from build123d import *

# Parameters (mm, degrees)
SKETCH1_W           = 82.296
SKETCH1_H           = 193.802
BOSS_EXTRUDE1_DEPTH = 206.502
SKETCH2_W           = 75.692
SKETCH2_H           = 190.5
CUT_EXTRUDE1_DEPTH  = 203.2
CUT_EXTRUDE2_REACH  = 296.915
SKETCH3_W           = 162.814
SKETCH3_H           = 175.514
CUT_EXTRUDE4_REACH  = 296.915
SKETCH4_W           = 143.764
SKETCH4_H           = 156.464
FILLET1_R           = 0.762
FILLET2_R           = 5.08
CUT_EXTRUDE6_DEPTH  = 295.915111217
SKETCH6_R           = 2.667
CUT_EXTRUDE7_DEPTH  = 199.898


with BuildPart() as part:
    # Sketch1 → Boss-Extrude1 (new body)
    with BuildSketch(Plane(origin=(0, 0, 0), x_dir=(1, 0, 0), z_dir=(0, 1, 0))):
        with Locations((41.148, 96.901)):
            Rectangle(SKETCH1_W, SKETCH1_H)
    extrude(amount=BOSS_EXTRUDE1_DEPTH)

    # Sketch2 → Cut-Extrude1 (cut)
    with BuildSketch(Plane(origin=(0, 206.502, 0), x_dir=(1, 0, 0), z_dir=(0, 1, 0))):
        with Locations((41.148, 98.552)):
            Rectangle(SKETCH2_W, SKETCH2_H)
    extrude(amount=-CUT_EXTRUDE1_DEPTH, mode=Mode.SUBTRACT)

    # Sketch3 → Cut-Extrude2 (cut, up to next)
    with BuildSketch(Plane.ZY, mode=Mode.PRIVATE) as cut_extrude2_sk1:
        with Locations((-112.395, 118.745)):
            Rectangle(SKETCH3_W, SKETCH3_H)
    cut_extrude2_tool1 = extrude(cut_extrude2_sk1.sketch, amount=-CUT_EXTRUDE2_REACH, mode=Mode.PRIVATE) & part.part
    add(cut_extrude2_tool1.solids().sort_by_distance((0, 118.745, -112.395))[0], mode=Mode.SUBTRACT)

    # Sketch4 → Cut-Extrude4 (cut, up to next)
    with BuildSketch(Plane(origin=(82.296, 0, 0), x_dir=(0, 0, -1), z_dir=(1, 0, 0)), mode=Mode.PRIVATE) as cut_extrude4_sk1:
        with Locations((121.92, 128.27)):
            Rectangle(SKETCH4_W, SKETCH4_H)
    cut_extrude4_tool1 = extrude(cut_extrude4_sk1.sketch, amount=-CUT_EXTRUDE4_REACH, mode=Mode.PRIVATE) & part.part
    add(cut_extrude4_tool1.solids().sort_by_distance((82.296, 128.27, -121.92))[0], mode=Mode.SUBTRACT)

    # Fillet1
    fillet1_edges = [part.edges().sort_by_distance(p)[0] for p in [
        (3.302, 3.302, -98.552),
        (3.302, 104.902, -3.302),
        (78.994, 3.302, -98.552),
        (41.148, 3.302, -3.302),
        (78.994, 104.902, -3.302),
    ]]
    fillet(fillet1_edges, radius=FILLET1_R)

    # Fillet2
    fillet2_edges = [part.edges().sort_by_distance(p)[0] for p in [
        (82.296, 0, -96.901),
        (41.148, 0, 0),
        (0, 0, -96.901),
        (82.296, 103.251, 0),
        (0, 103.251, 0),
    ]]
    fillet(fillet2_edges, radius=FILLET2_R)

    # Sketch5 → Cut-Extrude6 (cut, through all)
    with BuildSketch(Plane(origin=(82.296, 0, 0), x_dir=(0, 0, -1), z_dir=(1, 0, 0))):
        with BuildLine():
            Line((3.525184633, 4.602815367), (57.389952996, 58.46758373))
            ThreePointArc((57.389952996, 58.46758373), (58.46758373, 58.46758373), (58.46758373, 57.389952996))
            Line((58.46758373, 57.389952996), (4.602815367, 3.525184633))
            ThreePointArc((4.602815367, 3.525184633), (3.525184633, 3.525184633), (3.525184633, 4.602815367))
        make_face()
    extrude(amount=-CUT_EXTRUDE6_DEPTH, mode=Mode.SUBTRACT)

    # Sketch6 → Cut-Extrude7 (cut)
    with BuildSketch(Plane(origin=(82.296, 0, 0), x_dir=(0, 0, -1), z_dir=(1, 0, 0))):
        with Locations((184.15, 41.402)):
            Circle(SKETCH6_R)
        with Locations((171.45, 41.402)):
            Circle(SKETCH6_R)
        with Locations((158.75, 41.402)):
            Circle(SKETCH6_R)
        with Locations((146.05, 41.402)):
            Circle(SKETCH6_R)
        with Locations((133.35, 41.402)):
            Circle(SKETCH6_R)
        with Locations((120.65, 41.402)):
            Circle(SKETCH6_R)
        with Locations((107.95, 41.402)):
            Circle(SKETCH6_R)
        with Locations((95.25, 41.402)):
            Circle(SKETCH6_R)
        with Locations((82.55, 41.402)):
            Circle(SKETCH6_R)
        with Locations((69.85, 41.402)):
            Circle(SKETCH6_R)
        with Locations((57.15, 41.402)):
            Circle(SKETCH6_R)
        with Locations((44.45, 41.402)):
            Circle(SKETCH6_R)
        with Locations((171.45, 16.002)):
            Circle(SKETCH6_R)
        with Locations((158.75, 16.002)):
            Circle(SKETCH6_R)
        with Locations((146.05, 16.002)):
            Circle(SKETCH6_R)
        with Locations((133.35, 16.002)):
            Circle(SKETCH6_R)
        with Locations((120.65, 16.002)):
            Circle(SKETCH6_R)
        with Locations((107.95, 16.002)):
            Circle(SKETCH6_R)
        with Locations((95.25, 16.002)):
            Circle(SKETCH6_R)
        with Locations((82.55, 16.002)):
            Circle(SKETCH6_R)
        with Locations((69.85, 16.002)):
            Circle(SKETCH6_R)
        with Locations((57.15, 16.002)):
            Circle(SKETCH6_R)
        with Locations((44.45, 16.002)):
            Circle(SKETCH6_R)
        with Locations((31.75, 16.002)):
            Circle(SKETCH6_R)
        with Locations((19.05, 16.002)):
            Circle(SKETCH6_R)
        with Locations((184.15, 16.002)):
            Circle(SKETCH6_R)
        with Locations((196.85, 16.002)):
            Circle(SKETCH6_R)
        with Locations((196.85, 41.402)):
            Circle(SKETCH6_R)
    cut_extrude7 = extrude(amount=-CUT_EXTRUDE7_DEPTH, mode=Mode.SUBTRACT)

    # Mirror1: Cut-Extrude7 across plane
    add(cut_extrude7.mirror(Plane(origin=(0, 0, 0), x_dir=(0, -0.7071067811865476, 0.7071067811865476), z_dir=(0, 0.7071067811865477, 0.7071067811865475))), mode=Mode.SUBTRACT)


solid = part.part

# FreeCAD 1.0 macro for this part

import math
import FreeCAD as App
import Part
import Sketcher

V = App.Vector
Q = App.Units.Quantity


def edges_at(feature, points):
    """Names of the edges that pass closest to the given points."""
    edges = feature.Shape.Edges
    near = lambda p: min(range(len(edges)), key=lambda i: edges[i].distToShape(Part.Vertex(*p))[0])
    return sorted({f"Edge{near(p) + 1}" for p in points})


def add_polygon(sketch, points):
    """Adds a closed chain of lines whose ends are joined by coincident constraints."""
    first, n = sketch.GeometryCount, len(points)
    for a, b in zip(points, points[1:] + points[:1]):
        sketch.addGeometry(Part.LineSegment(App.Vector(*a, 0), App.Vector(*b, 0)), False)
    for i in range(n):
        sketch.addConstraint(Sketcher.Constraint("Coincident", first + i, 2, first + (i + 1) % n, 1))

doc = App.newDocument("Part")
body = doc.addObject("PartDesign::Body", "Body")

sketch1 = body.newObject("Sketcher::SketchObject", "Sketch")
sketch1.AttachmentSupport = (doc.getObject("XZ_Plane"), [""])
sketch1.MapMode = "FlatFace"
add_polygon(sketch1, [(0, -193.802), (0, 0), (82.296, 0), (82.296, -193.802)])
sketch1.addConstraint([
    Sketcher.Constraint("Vertical", 0),
    Sketcher.Constraint("Horizontal", 1),
    Sketcher.Constraint("Vertical", 2),
    Sketcher.Constraint("Horizontal", 3),
    Sketcher.Constraint("Coincident", 0, 2, -1, 1),
    Sketcher.Constraint("DistanceX", 1, 1, 1, 2, Q("3.24 in")),
    Sketcher.Constraint("DistanceY", 0, 1, 0, 2, Q("7.63 in")),
])
pad1 = body.newObject("PartDesign::Pad", "Pad")
pad1.Profile = sketch1
pad1.Length = Q("8.13 in")
pad1.Reversed = True

sketch2 = body.newObject("Sketcher::SketchObject", "Sketch001")
sketch2.AttachmentSupport = (doc.getObject("XZ_Plane"), [""])
sketch2.MapMode = "FlatFace"
sketch2.AttachmentOffset = App.Placement(V(0, 0, -8.13 * 25.4), App.Rotation())
add_polygon(sketch2, [(3.302, -193.802), (3.302, -3.302), (78.994, -3.302), (78.994, -193.802)])
sketch2.addConstraint([
    Sketcher.Constraint("Vertical", 0),
    Sketcher.Constraint("Horizontal", 1),
    Sketcher.Constraint("Vertical", 2),
    Sketcher.Constraint("Horizontal", 3),
    Sketcher.Constraint("DistanceY", 0, 1, 0, 2, Q("7.5 in")),
    Sketcher.Constraint("DistanceX", 1, 1, 1, 2, Q("2.98 in")),
    Sketcher.Constraint("DistanceX", -1, 1, 0, 2, Q("0.13 in")),
    Sketcher.Constraint("DistanceY", 0, 2, -1, 1, Q("0.13 in")),
])
pocket1 = body.newObject("PartDesign::Pocket", "Pocket")
pocket1.Profile = sketch2
pocket1.Length = Q("8 in")
pocket1.Reversed = True

sketch3 = body.newObject("Sketcher::SketchObject", "Sketch002")
sketch3.AttachmentSupport = (doc.getObject("YZ_Plane"), [""])
sketch3.MapMode = "FlatFace"
add_polygon(sketch3, [(206.502, -193.802), (30.988, -193.802), (30.988, -30.988), (206.502, -30.988)])
sketch3.addConstraint([
    Sketcher.Constraint("Horizontal", 0),
    Sketcher.Constraint("Vertical", 1),
    Sketcher.Constraint("Horizontal", 2),
    Sketcher.Constraint("Vertical", 3),
    Sketcher.Constraint("DistanceX", 0, 2, 0, 1, Q("6.91 in")),
    Sketcher.Constraint("DistanceY", 1, 1, 1, 2, Q("6.41 in")),
    Sketcher.Constraint("DistanceX", -1, 1, 0, 2, Q("1.22 in")),
    Sketcher.Constraint("DistanceY", 0, 2, -1, 1, Q("7.63 in")),
])
pocket2 = body.newObject("PartDesign::Pocket", "Pocket001")
pocket2.Profile = sketch3
pocket2.Type = "UpToFirst"
pocket2.Reversed = True

sketch4 = body.newObject("Sketcher::SketchObject", "Sketch003")
sketch4.AttachmentSupport = (doc.getObject("YZ_Plane"), [""])
sketch4.MapMode = "FlatFace"
sketch4.AttachmentOffset = App.Placement(V(0, 0, 3.24 * 25.4), App.Rotation())
add_polygon(sketch4, [(206.502, -50.038), (50.038, -50.038), (50.038, -193.802), (206.502, -193.802)])
sketch4.addConstraint([
    Sketcher.Constraint("Horizontal", 0),
    Sketcher.Constraint("Vertical", 1),
    Sketcher.Constraint("Horizontal", 2),
    Sketcher.Constraint("Vertical", 3),
    Sketcher.Constraint("DistanceX", 0, 2, 0, 1, Q("6.16 in")),
    Sketcher.Constraint("DistanceY", 1, 2, 1, 1, Q("5.66 in")),
    Sketcher.Constraint("DistanceX", -1, 1, 0, 2, Q("1.97 in")),
    Sketcher.Constraint("DistanceY", 0, 2, -1, 1, Q("1.97 in")),
])
pocket3 = body.newObject("PartDesign::Pocket", "Pocket002")
pocket3.Profile = sketch4
pocket3.Type = "UpToFirst"
doc.recompute()

fillet = body.newObject("PartDesign::Fillet", "Fillet")
fillet.Base = (pocket3, edges_at(pocket3, [
    (3.302, 3.302, -98.552),
    (3.302, 104.902, -3.302),
    (78.994, 3.302, -98.552),
    (41.148, 3.302, -3.302),
    (78.994, 104.902, -3.302),
]))
fillet.Radius = Q("0.03 in")
doc.recompute()

fillet2 = body.newObject("PartDesign::Fillet", "Fillet001")
fillet2.Base = (fillet, edges_at(fillet, [
    (82.296, 0, -96.901),
    (41.148, 0, 0),
    (0, 0, -96.901),
    (82.296, 103.251, 0),
    (0, 103.251, 0),
]))
fillet2.Radius = Q("0.2 in")

sketch5 = body.newObject("Sketcher::SketchObject", "Sketch004")
sketch5.AttachmentSupport = (doc.getObject("YZ_Plane"), [""])
sketch5.MapMode = "FlatFace"
sketch5.AttachmentOffset = App.Placement(V(0, 0, 3.24 * 25.4), App.Rotation())
sketch5.addGeometry([
    Part.LineSegment(V(58.467584, -57.389953, 0), V(4.602815, -3.525185, 0)),
    Part.ArcOfCircle(Part.Circle(V(4.064, -4.064, 0), V(0, 0, 1), 0.762), math.radians(45), math.radians(225)),
    Part.LineSegment(V(3.525185, -4.602815, 0), V(57.389953, -58.467584, 0)),
    Part.ArcOfCircle(Part.Circle(V(57.928768, -57.928768, 0), V(0, 0, 1), 0.762), math.radians(-135), math.radians(45)),
], False)
sketch5.addConstraint([
    Sketcher.Constraint("Tangent", 0, 2, 1, 1),
    Sketcher.Constraint("Tangent", 1, 2, 2, 1),
    Sketcher.Constraint("Tangent", 2, 2, 3, 1),
    Sketcher.Constraint("Tangent", 3, 2, 0, 1),
    Sketcher.Constraint("Equal", 1, 3),
    Sketcher.Constraint("Radius", 1, Q("0.03 in")),
    Sketcher.Constraint("Angle", 0, Q("135 deg")),
    Sketcher.Constraint("DistanceX", -1, 1, 1, 3, Q("0.16 in")),
    Sketcher.Constraint("DistanceY", 1, 3, -1, 1, Q("0.16 in")),
    Sketcher.Constraint("DistanceY", 2, 2, 0, 2, Q("54.942399 mm")),
])
pocket4 = body.newObject("PartDesign::Pocket", "Pocket003")
pocket4.Profile = sketch5
pocket4.Type = "ThroughAll"

sketch6 = body.newObject("Sketcher::SketchObject", "Sketch005")
sketch6.AttachmentSupport = (doc.getObject("YZ_Plane"), [""])
sketch6.MapMode = "FlatFace"
sketch6.AttachmentOffset = App.Placement(V(0, 0, 3.24 * 25.4), App.Rotation())
sketch6.addGeometry([
    Part.Circle(V(41.402, -184.15, 0), V(0, 0, 1), 2.667),
    Part.Circle(V(41.402, -171.45, 0), V(0, 0, 1), 2.667),
    Part.Circle(V(41.402, -158.75, 0), V(0, 0, 1), 2.667),
    Part.Circle(V(41.402, -146.05, 0), V(0, 0, 1), 2.667),
    Part.Circle(V(41.402, -133.35, 0), V(0, 0, 1), 2.667),
    Part.Circle(V(41.402, -120.65, 0), V(0, 0, 1), 2.667),
    Part.Circle(V(41.402, -107.95, 0), V(0, 0, 1), 2.667),
    Part.Circle(V(41.402, -95.25, 0), V(0, 0, 1), 2.667),
    Part.Circle(V(41.402, -82.55, 0), V(0, 0, 1), 2.667),
    Part.Circle(V(41.402, -69.85, 0), V(0, 0, 1), 2.667),
    Part.Circle(V(41.402, -57.15, 0), V(0, 0, 1), 2.667),
    Part.Circle(V(41.402, -44.45, 0), V(0, 0, 1), 2.667),
    Part.Circle(V(16.002, -171.45, 0), V(0, 0, 1), 2.667),
    Part.Circle(V(16.002, -158.75, 0), V(0, 0, 1), 2.667),
    Part.Circle(V(16.002, -146.05, 0), V(0, 0, 1), 2.667),
    Part.Circle(V(16.002, -133.35, 0), V(0, 0, 1), 2.667),
    Part.Circle(V(16.002, -120.65, 0), V(0, 0, 1), 2.667),
    Part.Circle(V(16.002, -107.95, 0), V(0, 0, 1), 2.667),
    Part.Circle(V(16.002, -95.25, 0), V(0, 0, 1), 2.667),
    Part.Circle(V(16.002, -82.55, 0), V(0, 0, 1), 2.667),
    Part.Circle(V(16.002, -69.85, 0), V(0, 0, 1), 2.667),
    Part.Circle(V(16.002, -57.15, 0), V(0, 0, 1), 2.667),
    Part.Circle(V(16.002, -44.45, 0), V(0, 0, 1), 2.667),
    Part.Circle(V(16.002, -31.75, 0), V(0, 0, 1), 2.667),
    Part.Circle(V(16.002, -19.05, 0), V(0, 0, 1), 2.667),
    Part.Circle(V(16.002, -184.15, 0), V(0, 0, 1), 2.667),
    Part.Circle(V(16.002, -196.85, 0), V(0, 0, 1), 2.667),
    Part.Circle(V(41.402, -196.85, 0), V(0, 0, 1), 2.667),
], False)
sketch6.addConstraint([
    Sketcher.Constraint("Equal", 0, 1),
    Sketcher.Constraint("Equal", 1, 2),
    Sketcher.Constraint("Equal", 2, 3),
    Sketcher.Constraint("Equal", 3, 4),
    Sketcher.Constraint("Equal", 4, 5),
    Sketcher.Constraint("Equal", 5, 6),
    Sketcher.Constraint("Equal", 6, 7),
    Sketcher.Constraint("Equal", 7, 8),
    Sketcher.Constraint("Equal", 8, 9),
    Sketcher.Constraint("Equal", 9, 10),
    Sketcher.Constraint("Equal", 10, 11),
    Sketcher.Constraint("Equal", 11, 12),
    Sketcher.Constraint("Equal", 12, 13),
    Sketcher.Constraint("Equal", 13, 14),
    Sketcher.Constraint("Equal", 14, 15),
    Sketcher.Constraint("Equal", 15, 16),
    Sketcher.Constraint("Equal", 16, 17),
    Sketcher.Constraint("Equal", 17, 18),
    Sketcher.Constraint("Equal", 18, 19),
    Sketcher.Constraint("Equal", 19, 20),
    Sketcher.Constraint("Equal", 20, 21),
    Sketcher.Constraint("Equal", 21, 22),
    Sketcher.Constraint("Equal", 22, 23),
    Sketcher.Constraint("Equal", 23, 24),
    Sketcher.Constraint("Equal", 24, 25),
    Sketcher.Constraint("Equal", 25, 26),
    Sketcher.Constraint("Equal", 26, 27),
    Sketcher.Constraint("Horizontal", 1, 3, 12, 3),
    Sketcher.Constraint("Horizontal", 2, 3, 13, 3),
    Sketcher.Constraint("Horizontal", 3, 3, 14, 3),
    Sketcher.Constraint("Horizontal", 4, 3, 15, 3),
    Sketcher.Constraint("Horizontal", 5, 3, 16, 3),
    Sketcher.Constraint("Horizontal", 6, 3, 17, 3),
    Sketcher.Constraint("Horizontal", 7, 3, 18, 3),
    Sketcher.Constraint("Horizontal", 8, 3, 19, 3),
    Sketcher.Constraint("Horizontal", 9, 3, 20, 3),
    Sketcher.Constraint("Horizontal", 10, 3, 21, 3),
    Sketcher.Constraint("Horizontal", 11, 3, 22, 3),
    Sketcher.Constraint("Horizontal", 0, 3, 25, 3),
    Sketcher.Constraint("Horizontal", 26, 3, 27, 3),
    Sketcher.Constraint("Vertical", 0, 3, 1, 3),
    Sketcher.Constraint("Vertical", 1, 3, 2, 3),
    Sketcher.Constraint("Vertical", 2, 3, 3, 3),
    Sketcher.Constraint("Vertical", 3, 3, 4, 3),
    Sketcher.Constraint("Vertical", 4, 3, 5, 3),
    Sketcher.Constraint("Vertical", 5, 3, 6, 3),
    Sketcher.Constraint("Vertical", 6, 3, 7, 3),
    Sketcher.Constraint("Vertical", 7, 3, 8, 3),
    Sketcher.Constraint("Vertical", 8, 3, 9, 3),
    Sketcher.Constraint("Vertical", 9, 3, 10, 3),
    Sketcher.Constraint("Vertical", 10, 3, 11, 3),
    Sketcher.Constraint("Vertical", 12, 3, 13, 3),
    Sketcher.Constraint("Vertical", 13, 3, 14, 3),
    Sketcher.Constraint("Vertical", 14, 3, 15, 3),
    Sketcher.Constraint("Vertical", 15, 3, 16, 3),
    Sketcher.Constraint("Vertical", 16, 3, 17, 3),
    Sketcher.Constraint("Vertical", 17, 3, 18, 3),
    Sketcher.Constraint("Vertical", 18, 3, 19, 3),
    Sketcher.Constraint("Vertical", 19, 3, 20, 3),
    Sketcher.Constraint("Vertical", 20, 3, 21, 3),
    Sketcher.Constraint("Vertical", 21, 3, 22, 3),
    Sketcher.Constraint("Vertical", 22, 3, 23, 3),
    Sketcher.Constraint("Vertical", 23, 3, 24, 3),
    Sketcher.Constraint("Vertical", 24, 3, 25, 3),
    Sketcher.Constraint("Vertical", 25, 3, 26, 3),
    Sketcher.Constraint("Vertical", 11, 3, 27, 3),
    Sketcher.Constraint("Diameter", 0, Q("0.21 in")),
    Sketcher.Constraint("DistanceY", 0, 3, 2, 3, Q("1 in")),
    Sketcher.Constraint("DistanceY", 1, 3, 3, 3, Q("1 in")),
    Sketcher.Constraint("DistanceY", 2, 3, 4, 3, Q("1 in")),
    Sketcher.Constraint("DistanceY", 3, 3, 5, 3, Q("1 in")),
    Sketcher.Constraint("DistanceY", 4, 3, 6, 3, Q("1 in")),
    Sketcher.Constraint("DistanceY", 5, 3, 7, 3, Q("1 in")),
    Sketcher.Constraint("DistanceY", 6, 3, 8, 3, Q("1 in")),
    Sketcher.Constraint("DistanceY", 7, 3, 9, 3, Q("1 in")),
    Sketcher.Constraint("DistanceY", 8, 3, 10, 3, Q("1 in")),
    Sketcher.Constraint("DistanceY", 9, 3, 11, 3, Q("1 in")),
    Sketcher.Constraint("DistanceX", 12, 3, 1, 3, Q("1 in")),
    Sketcher.Constraint("DistanceY", 21, 3, 23, 3, Q("1 in")),
    Sketcher.Constraint("DistanceY", 22, 3, 24, 3, Q("1 in")),
    Sketcher.Constraint("DistanceY", 26, 3, 12, 3, Q("1 in")),
    Sketcher.Constraint("DistanceY", 0, 3, 1, 3, Q("0.5 in")),
    Sketcher.Constraint("DistanceX", -1, 1, 0, 3, Q("1.63 in")),
    Sketcher.Constraint("DistanceY", 0, 3, -1, 1, Q("7.25 in")),
])
pocket5 = body.newObject("PartDesign::Pocket", "Pocket004")
pocket5.Profile = sketch6
pocket5.Length = Q("7.87 in")
doc.recompute()

datumplane = body.newObject("PartDesign::Plane", "DatumPlane")
datumplane.Placement = App.Placement(V(0, 0, 0), App.Rotation(V(0, 0.707106781, -0.707106781), V(-1, 0, 0), V(0, 0.707106781, 0.707106781), "ZXY"))
mirrored = body.newObject("PartDesign::Mirrored", "Mirrored")
mirrored.Originals = [pocket5]
mirrored.MirrorPlane = (datumplane, [""])
body.Tip = mirrored

doc.recompute()
